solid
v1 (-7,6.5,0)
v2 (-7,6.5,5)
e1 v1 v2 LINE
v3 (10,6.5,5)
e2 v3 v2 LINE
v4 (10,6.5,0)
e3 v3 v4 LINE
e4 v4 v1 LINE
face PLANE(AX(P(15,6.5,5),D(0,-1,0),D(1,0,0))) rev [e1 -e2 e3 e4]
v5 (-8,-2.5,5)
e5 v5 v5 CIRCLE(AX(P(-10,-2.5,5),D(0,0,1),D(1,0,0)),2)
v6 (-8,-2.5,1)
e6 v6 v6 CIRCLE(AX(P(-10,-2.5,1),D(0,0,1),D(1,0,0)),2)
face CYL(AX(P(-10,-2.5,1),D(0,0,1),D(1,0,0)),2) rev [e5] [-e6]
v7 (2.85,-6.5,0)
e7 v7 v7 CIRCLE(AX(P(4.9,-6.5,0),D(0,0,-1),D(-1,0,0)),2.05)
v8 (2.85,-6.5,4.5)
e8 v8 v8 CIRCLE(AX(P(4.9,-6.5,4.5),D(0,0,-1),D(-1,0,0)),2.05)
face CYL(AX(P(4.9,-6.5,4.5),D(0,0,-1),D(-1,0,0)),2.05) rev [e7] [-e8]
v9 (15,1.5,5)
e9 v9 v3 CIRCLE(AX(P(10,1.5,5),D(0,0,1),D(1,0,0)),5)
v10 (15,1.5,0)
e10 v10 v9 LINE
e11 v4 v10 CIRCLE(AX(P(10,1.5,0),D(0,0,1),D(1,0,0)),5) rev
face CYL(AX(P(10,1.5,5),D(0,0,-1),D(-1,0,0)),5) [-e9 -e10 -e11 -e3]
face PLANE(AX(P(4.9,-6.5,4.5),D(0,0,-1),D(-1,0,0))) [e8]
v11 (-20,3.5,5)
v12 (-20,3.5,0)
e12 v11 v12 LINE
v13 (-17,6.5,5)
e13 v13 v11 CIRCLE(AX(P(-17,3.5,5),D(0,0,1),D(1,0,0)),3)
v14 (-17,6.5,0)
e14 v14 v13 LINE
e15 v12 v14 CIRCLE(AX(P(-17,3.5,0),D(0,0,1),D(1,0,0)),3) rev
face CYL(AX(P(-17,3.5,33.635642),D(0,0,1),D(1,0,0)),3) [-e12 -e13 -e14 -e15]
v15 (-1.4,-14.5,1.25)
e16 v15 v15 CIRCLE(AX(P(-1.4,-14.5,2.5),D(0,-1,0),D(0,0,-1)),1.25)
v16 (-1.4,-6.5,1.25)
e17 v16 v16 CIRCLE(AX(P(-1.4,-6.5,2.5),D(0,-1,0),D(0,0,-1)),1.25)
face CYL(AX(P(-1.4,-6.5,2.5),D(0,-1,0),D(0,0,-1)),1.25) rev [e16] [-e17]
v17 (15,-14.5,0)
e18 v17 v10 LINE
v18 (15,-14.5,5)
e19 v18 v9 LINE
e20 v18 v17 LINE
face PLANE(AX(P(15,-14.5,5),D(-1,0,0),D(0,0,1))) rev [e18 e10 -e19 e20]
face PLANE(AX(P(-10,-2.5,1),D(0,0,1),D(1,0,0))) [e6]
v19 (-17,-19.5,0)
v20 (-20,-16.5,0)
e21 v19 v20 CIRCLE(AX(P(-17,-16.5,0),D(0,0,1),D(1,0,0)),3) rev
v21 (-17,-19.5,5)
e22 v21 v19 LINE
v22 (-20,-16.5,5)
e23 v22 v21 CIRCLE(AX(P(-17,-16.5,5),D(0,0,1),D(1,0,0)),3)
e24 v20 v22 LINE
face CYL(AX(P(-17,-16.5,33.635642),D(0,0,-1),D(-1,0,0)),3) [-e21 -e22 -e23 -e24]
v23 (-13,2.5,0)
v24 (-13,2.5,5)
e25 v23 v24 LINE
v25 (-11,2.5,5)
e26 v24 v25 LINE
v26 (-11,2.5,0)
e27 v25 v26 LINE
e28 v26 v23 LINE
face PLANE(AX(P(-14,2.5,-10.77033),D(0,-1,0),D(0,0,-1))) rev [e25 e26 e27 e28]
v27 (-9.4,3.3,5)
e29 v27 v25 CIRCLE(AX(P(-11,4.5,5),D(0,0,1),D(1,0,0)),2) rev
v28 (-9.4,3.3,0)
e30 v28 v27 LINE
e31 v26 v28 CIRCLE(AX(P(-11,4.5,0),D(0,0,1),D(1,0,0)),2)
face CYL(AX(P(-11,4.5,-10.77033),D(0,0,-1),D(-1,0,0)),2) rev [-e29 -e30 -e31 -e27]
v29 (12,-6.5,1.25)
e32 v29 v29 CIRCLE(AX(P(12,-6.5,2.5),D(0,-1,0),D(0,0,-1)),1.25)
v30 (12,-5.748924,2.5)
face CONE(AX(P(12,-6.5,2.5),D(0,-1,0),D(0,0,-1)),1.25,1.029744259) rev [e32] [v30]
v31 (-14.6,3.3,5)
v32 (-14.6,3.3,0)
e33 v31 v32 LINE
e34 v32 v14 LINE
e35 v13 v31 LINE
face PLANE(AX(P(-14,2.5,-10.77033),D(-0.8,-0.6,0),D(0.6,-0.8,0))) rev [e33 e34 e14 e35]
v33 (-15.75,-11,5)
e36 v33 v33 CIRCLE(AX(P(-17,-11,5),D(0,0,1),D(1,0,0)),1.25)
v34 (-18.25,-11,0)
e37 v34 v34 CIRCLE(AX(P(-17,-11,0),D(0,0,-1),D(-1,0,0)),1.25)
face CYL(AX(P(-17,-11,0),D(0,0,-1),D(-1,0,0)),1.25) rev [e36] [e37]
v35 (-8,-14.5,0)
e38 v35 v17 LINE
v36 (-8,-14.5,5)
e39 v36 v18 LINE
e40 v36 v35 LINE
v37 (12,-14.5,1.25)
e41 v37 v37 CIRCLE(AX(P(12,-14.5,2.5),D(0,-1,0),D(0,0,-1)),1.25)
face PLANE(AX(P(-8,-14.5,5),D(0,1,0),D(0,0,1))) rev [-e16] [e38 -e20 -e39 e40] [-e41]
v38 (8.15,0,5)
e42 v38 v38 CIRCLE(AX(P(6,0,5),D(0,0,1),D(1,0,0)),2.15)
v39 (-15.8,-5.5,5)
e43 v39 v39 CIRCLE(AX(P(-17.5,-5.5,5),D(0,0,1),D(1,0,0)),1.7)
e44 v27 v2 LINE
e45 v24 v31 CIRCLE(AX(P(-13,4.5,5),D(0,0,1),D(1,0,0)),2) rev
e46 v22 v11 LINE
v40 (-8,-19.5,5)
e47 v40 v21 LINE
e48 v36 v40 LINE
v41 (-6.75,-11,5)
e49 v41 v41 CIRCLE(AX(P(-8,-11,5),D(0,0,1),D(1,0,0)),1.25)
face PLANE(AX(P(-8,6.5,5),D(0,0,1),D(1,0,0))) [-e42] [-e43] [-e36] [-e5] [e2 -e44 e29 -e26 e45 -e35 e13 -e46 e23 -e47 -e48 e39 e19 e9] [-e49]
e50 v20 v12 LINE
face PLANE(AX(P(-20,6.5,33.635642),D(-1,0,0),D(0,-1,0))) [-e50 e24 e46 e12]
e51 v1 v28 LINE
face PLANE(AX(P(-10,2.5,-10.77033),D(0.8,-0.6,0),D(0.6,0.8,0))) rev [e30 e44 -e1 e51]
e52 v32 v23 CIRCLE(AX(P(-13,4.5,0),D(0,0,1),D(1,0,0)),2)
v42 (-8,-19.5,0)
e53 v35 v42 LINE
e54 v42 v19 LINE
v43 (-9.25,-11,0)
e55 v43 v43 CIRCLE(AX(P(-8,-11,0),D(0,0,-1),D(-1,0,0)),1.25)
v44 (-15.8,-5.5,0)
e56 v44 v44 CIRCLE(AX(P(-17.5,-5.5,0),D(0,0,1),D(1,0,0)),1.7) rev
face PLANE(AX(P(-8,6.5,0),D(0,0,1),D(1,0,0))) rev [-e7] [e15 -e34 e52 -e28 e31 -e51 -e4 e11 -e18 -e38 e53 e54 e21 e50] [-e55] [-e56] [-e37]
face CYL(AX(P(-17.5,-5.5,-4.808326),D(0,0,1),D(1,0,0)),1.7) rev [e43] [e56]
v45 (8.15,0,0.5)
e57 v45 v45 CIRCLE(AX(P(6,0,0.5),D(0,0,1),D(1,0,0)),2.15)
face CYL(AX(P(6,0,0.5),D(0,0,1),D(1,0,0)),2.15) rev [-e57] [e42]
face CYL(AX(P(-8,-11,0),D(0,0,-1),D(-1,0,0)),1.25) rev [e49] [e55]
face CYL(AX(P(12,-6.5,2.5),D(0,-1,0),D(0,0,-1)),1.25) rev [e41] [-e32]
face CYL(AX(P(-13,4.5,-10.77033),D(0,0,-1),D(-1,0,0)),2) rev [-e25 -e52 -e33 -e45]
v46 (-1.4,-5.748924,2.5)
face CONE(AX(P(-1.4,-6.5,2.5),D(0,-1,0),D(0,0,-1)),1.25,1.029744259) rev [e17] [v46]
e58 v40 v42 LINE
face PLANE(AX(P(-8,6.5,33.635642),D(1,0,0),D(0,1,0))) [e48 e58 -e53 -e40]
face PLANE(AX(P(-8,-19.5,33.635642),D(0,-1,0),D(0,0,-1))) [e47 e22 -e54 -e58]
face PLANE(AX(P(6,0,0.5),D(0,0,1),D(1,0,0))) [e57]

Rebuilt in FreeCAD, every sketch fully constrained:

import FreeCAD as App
import Part
import Sketcher
from FreeCAD import Vector


def edges_at(feature, points):
    """Names of the edges that pass closest to the given points."""
    edges = feature.Shape.Edges
    near = lambda p: min(range(len(edges)), key=lambda i: edges[i].distToShape(Part.Vertex(*p))[0])
    return sorted({f"Edge{near(p) + 1}" for p in points})

doc = App.newDocument("Part")
params = doc.addObject("Spreadsheet::Sheet", "Params")
for row, (alias, value) in enumerate([
    ("sketch1_width", "23 mm"),
    ("sketch1_height", "21 mm"),
    ("pad1_length", "5 mm"),
    ("sketch2_diameter", "4.3 mm"),
    ("pocket1_length", "4.5 mm"),
    ("sketch3_diameter", "2.5 mm"),
    ("pocket2_length", "8 mm"),
    ("fillet_radius", "5 mm"),
    ("sketch4_diameter", "4.1 mm"),
    ("pocket3_length", "4.5 mm"),
    ("sketch5_width", "12 mm"),
    ("sketch5_height", "26 mm"),
    ("pad2_length", "5 mm"),
    ("sketch6_diameter", "3.4 mm"),
    ("pocket4_length", "5 mm"),
    ("sketch7_diameter", "4 mm"),
    ("pocket5_length", "4 mm"),
    ("sketch8_diameter", "2.5 mm"),
    ("hole_diameter", "2.5 mm"),
    ("hole_depth", "8 mm"),
    ("fillet2_radius", "3 mm"),
    ("sketch9_width", "4 mm"),
    ("sketch9_width2", "10 mm"),
    ("sketch9_length", "5 mm"),
    ("pocket6_length", "5 mm"),
    ("fillet3_radius", "2 mm"),
    ("sketch10_diameter", "1.5 mm"),
    ("pocket7_length", "5 mm"),
    ("sketch11_diameter", "2.5 mm"),
    ("hole2_diameter", "2.5 mm"),
    ("hole2_depth", "7.5 mm"),
], start=1):
    params.set(f"A{row}", alias)
    params.set(f"B{row}", "=" + value)
    params.setAlias(f"B{row}", alias)

body = doc.addObject("PartDesign::Body", "Body")

# Sketch on XY plane
sketch1 = body.newObject("Sketcher::SketchObject", "Sketch")
sketch1.AttachmentSupport = (doc.getObject("XY_Plane"), [""])
sketch1.MapMode = "FlatFace"
sketch1.addGeometry([
    Part.LineSegment(Vector(-8, 6, 0), Vector(-8, -14, 0)),
    Part.LineSegment(Vector(-8, -14, 0), Vector(15, -14, 0)),
    Part.LineSegment(Vector(15, -14, 0), Vector(15, 6, 0)),
    Part.LineSegment(Vector(15, 6, 0), Vector(-8, 6, 0)),
], False)
sketch1.addConstraint([
    Sketcher.Constraint("Coincident", 0, 2, 1, 1),
    Sketcher.Constraint("Coincident", 1, 2, 2, 1),
    Sketcher.Constraint("Coincident", 2, 2, 3, 1),
    Sketcher.Constraint("Coincident", 3, 2, 0, 1),
    Sketcher.Constraint("Vertical", 0),
    Sketcher.Constraint("Horizontal", 1),
    Sketcher.Constraint("Vertical", 2),
    Sketcher.Constraint("Horizontal", 3),
    Sketcher.Constraint("DistanceX", 1, 1, 1, 2, 23.0),
    Sketcher.Constraint("DistanceY", 0, 2, 0, 1, 21.0),
    Sketcher.Constraint("DistanceX", 0, 2, -1, 1, 8.0),
    Sketcher.Constraint("DistanceY", 0, 2, -1, 1, 14.5),
])
sketch1.setExpression("Constraints[8]", "Params.sketch1_width")
sketch1.setExpression("Constraints[9]", "Params.sketch1_height")
pad1 = body.newObject("PartDesign::Pad", "Pad")
pad1.Profile = sketch1
pad1.setExpression("Length", "Params.pad1_length")

# Sketch on XY plane
sketch2 = body.newObject("Sketcher::SketchObject", "Sketch001")
sketch2.AttachmentSupport = (doc.getObject("XY_Plane"), [""])
sketch2.MapMode = "FlatFace"
sketch2.AttachmentOffset = App.Placement(Vector(0, 0, 5), App.Rotation())
sketch2.addGeometry(Part.Circle(Vector(6, 0, 0), Vector(0, 0, 1), 2.1), False)
sketch2.addConstraint([
    Sketcher.Constraint("PointOnObject", 0, 3, -1),
    Sketcher.Constraint("Diameter", 0, 4.3),
    Sketcher.Constraint("DistanceX", -1, 1, 0, 3, 6.0),
])
sketch2.setExpression("Constraints[1]", "Params.sketch2_diameter")
pocket1 = body.newObject("PartDesign::Pocket", "Pocket")
pocket1.Profile = sketch2
pocket1.setExpression("Length", "Params.pocket1_length")

# Sketch on XZ plane
sketch3 = body.newObject("Sketcher::SketchObject", "Sketch002")
sketch3.AttachmentSupport = (doc.getObject("XZ_Plane"), [""])
sketch3.MapMode = "FlatFace"
sketch3.AttachmentOffset = App.Placement(Vector(0, 0, 14.5), App.Rotation())
sketch3.addGeometry([
    Part.Circle(Vector(-1.4, 2.5, 0), Vector(0, 0, 1), 1.2),
    Part.Circle(Vector(12, 2.5, 0), Vector(0, 0, 1), 1.2),
], False)
sketch3.addConstraint([
    Sketcher.Constraint("Equal", 0, 1),
    Sketcher.Constraint("Horizontal", 0, 3, 1, 3),
    Sketcher.Constraint("Diameter", 0, 2.5),
    Sketcher.Constraint("DistanceX", -1, 1, 1, 3, 12.0),
    Sketcher.Constraint("DistanceX", 0, 3, -1, 1, 1.4),
    Sketcher.Constraint("DistanceY", -1, 1, 0, 3, 2.5),
])
sketch3.setExpression("Constraints[2]", "Params.sketch3_diameter")
pocket2 = body.newObject("PartDesign::Pocket", "Pocket001")
pocket2.Profile = sketch3
pocket2.setExpression("Length", "Params.pocket2_length")
doc.recompute()

fillet = body.newObject("PartDesign::Fillet", "Fillet")
fillet.Base = (pocket2, edges_at(pocket2, [(15, 6.5, 2.5)]))
fillet.setExpression("Radius", "Params.fillet_radius")

# Sketch on XY plane
sketch4 = body.newObject("Sketcher::SketchObject", "Sketch003")
sketch4.AttachmentSupport = (doc.getObject("XY_Plane"), [""])
sketch4.MapMode = "FlatFace"
sketch4.addGeometry(Part.Circle(Vector(4.9, -6.5, 0), Vector(0, 0, 1), 2), False)
sketch4.addConstraint([
    Sketcher.Constraint("Diameter", 0, 4.1),
    Sketcher.Constraint("DistanceX", -1, 1, 0, 3, 4.9),
    Sketcher.Constraint("DistanceY", 0, 3, -1, 1, 6.5),
])
sketch4.setExpression("Constraints[0]", "Params.sketch4_diameter")
pocket3 = body.newObject("PartDesign::Pocket", "Pocket002")
pocket3.Profile = sketch4
pocket3.setExpression("Length", "Params.pocket3_length")
pocket3.Reversed = True

# Sketch on XY plane
sketch5 = body.newObject("Sketcher::SketchObject", "Sketch004")
sketch5.AttachmentSupport = (doc.getObject("XY_Plane"), [""])
sketch5.MapMode = "FlatFace"
sketch5.addGeometry([
    Part.LineSegment(Vector(-8, 6, 0), Vector(-8, -20, 0)),
    Part.LineSegment(Vector(-8, -20, 0), Vector(-20, -20, 0)),
    Part.LineSegment(Vector(-20, -20, 0), Vector(-20, 6, 0)),
    Part.LineSegment(Vector(-20, 6, 0), Vector(-8, 6, 0)),
], False)
sketch5.addConstraint([
    Sketcher.Constraint("Coincident", 0, 2, 1, 1),
    Sketcher.Constraint("Coincident", 1, 2, 2, 1),
    Sketcher.Constraint("Coincident", 2, 2, 3, 1),
    Sketcher.Constraint("Coincident", 3, 2, 0, 1),
    Sketcher.Constraint("Vertical", 0),
    Sketcher.Constraint("Horizontal", 1),
    Sketcher.Constraint("Vertical", 2),
    Sketcher.Constraint("Horizontal", 3),
    Sketcher.Constraint("DistanceX", 1, 2, 1, 1, 12.0),
    Sketcher.Constraint("DistanceY", 0, 2, 0, 1, 26.0),
    Sketcher.Constraint("DistanceX", 0, 2, -1, 1, 8.0),
    Sketcher.Constraint("DistanceY", 0, 2, -1, 1, 19.5),
])
sketch5.setExpression("Constraints[8]", "Params.sketch5_width")
sketch5.setExpression("Constraints[9]", "Params.sketch5_height")
pad2 = body.newObject("PartDesign::Pad", "Pad001")
pad2.Profile = sketch5
pad2.setExpression("Length", "Params.pad2_length")

# Sketch on XY plane
sketch6 = body.newObject("Sketcher::SketchObject", "Sketch005")
sketch6.AttachmentSupport = (doc.getObject("XY_Plane"), [""])
sketch6.MapMode = "FlatFace"
sketch6.AttachmentOffset = App.Placement(Vector(0, 0, 5), App.Rotation())
sketch6.addGeometry(Part.Circle(Vector(-17.5, -5.5, 0), Vector(0, 0, 1), 1.7), False)
sketch6.addConstraint([
    Sketcher.Constraint("Diameter", 0, 3.4),
    Sketcher.Constraint("DistanceX", 0, 3, -1, 1, 17.5),
    Sketcher.Constraint("DistanceY", 0, 3, -1, 1, 5.5),
])
sketch6.setExpression("Constraints[0]", "Params.sketch6_diameter")
pocket4 = body.newObject("PartDesign::Pocket", "Pocket003")
pocket4.Profile = sketch6
pocket4.setExpression("Length", "Params.pocket4_length")

# Sketch on XY plane
sketch7 = body.newObject("Sketcher::SketchObject", "Sketch006")
sketch7.AttachmentSupport = (doc.getObject("XY_Plane"), [""])
sketch7.MapMode = "FlatFace"
sketch7.AttachmentOffset = App.Placement(Vector(0, 0, 5), App.Rotation())
sketch7.addGeometry(Part.Circle(Vector(-10, -2.5, 0), Vector(0, 0, 1), 2), False)
sketch7.addConstraint([
    Sketcher.Constraint("Diameter", 0, 4.0),
    Sketcher.Constraint("DistanceX", 0, 3, -1, 1, 10.0),
    Sketcher.Constraint("DistanceY", 0, 3, -1, 1, 2.5),
])
sketch7.setExpression("Constraints[0]", "Params.sketch7_diameter")
pocket5 = body.newObject("PartDesign::Pocket", "Pocket004")
pocket5.Profile = sketch7
pocket5.setExpression("Length", "Params.pocket5_length")

# Sketch on XZ plane
sketch8 = body.newObject("Sketcher::SketchObject", "Sketch007")
sketch8.AttachmentSupport = (doc.getObject("XZ_Plane"), [""])
sketch8.MapMode = "FlatFace"
sketch8.AttachmentOffset = App.Placement(Vector(0, 0, 14.5), App.Rotation())
sketch8.addGeometry([
    Part.Circle(Vector(-1.4, 2.5, 0), Vector(0, 0, 1), 1.2),
    Part.Circle(Vector(12, 2.5, 0), Vector(0, 0, 1), 1.2),
], False)
sketch8.addConstraint([
    Sketcher.Constraint("Equal", 0, 1),
    Sketcher.Constraint("Horizontal", 0, 3, 1, 3),
    Sketcher.Constraint("Diameter", 0, 2.5),
    Sketcher.Constraint("DistanceX", -1, 1, 1, 3, 12.0),
    Sketcher.Constraint("DistanceX", 0, 3, -1, 1, 1.4),
    Sketcher.Constraint("DistanceY", -1, 1, 0, 3, 2.5),
])
sketch8.setExpression("Constraints[2]", "Params.sketch8_diameter")
doc.recompute()
hole = body.newObject("PartDesign::Hole", "Hole")
hole.Profile = sketch8
hole.ThreadType = "None"
hole.setExpression("Diameter", "Params.hole_diameter")
hole.DepthType = "Dimension"
hole.setExpression("Depth", "Params.hole_depth")
hole.DrillPoint = "Angled"
hole.DrillPointAngle = 118
doc.recompute()

fillet2 = body.newObject("PartDesign::Fillet", "Fillet001")
fillet2.Base = (hole, edges_at(hole, [(-20, -19.5, 2.5), (-20, 6.5, 2.5)]))
fillet2.setExpression("Radius", "Params.fillet2_radius")

# Sketch on XY plane
sketch9 = body.newObject("Sketcher::SketchObject", "Sketch008")
sketch9.AttachmentSupport = (doc.getObject("XY_Plane"), [""])
sketch9.MapMode = "FlatFace"
sketch9.AttachmentOffset = App.Placement(Vector(0, 0, 5), App.Rotation())
sketch9.addGeometry([
    Part.LineSegment(Vector(-17, 6.5, 0), Vector(-14, 2.5, 0)),
    Part.LineSegment(Vector(-14, 2.5, 0), Vector(-10, 2.5, 0)),
    Part.LineSegment(Vector(-10, 2.5, 0), Vector(-7, 6.5, 0)),
    Part.LineSegment(Vector(-7, 6.5, 0), Vector(-17, 6.5, 0)),
], False)
sketch9.addConstraint([
    Sketcher.Constraint("Coincident", 0, 2, 1, 1),
    Sketcher.Constraint("Coincident", 1, 2, 2, 1),
    Sketcher.Constraint("Coincident", 2, 2, 3, 1),
    Sketcher.Constraint("Coincident", 3, 2, 0, 1),
    Sketcher.Constraint("Horizontal", 1),
    Sketcher.Constraint("Horizontal", 3),
    Sketcher.Constraint("Equal", 0, 2),
    Sketcher.Constraint("DistanceX", 1, 1, 1, 2, 4.0),
    Sketcher.Constraint("DistanceX", 3, 2, 3, 1, 10.0),
    Sketcher.Constraint("Distance", 0, 5.0),
    Sketcher.Constraint("DistanceX", 0, 2, -1, 1, 14.0),
    Sketcher.Constraint("DistanceY", -1, 1, 0, 2, 2.5),
])
sketch9.setExpression("Constraints[7]", "Params.sketch9_width")
sketch9.setExpression("Constraints[8]", "Params.sketch9_width2")
sketch9.setExpression("Constraints[9]", "Params.sketch9_length")
pocket6 = body.newObject("PartDesign::Pocket", "Pocket005")
pocket6.Profile = sketch9
pocket6.setExpression("Length", "Params.pocket6_length")
doc.recompute()

fillet3 = body.newObject("PartDesign::Fillet", "Fillet002")
fillet3.Base = (pocket6, edges_at(pocket6, [(-10, 2.5, 2.5), (-14, 2.5, 2.5)]))
fillet3.setExpression("Radius", "Params.fillet3_radius")

# Sketch on XY plane
sketch10 = body.newObject("Sketcher::SketchObject", "Sketch009")
sketch10.AttachmentSupport = (doc.getObject("XY_Plane"), [""])
sketch10.MapMode = "FlatFace"
sketch10.addGeometry([
    Part.Circle(Vector(-17, -11, 0), Vector(0, 0, 1), 0.8),
    Part.Circle(Vector(-8, -11, 0), Vector(0, 0, 1), 0.8),
], False)
sketch10.addConstraint([
    Sketcher.Constraint("Equal", 0, 1),
    Sketcher.Constraint("Horizontal", 0, 3, 1, 3),
    Sketcher.Constraint("Diameter", 0, 1.5),
    Sketcher.Constraint("DistanceX", 0, 3, -1, 1, 17.0),
    Sketcher.Constraint("DistanceY", 0, 3, -1, 1, 11.0),
    Sketcher.Constraint("DistanceX", 1, 3, -1, 1, 8.0),
])
sketch10.setExpression("Constraints[2]", "Params.sketch10_diameter")
pocket7 = body.newObject("PartDesign::Pocket", "Pocket006")
pocket7.Profile = sketch10
pocket7.setExpression("Length", "Params.pocket7_length")
pocket7.Reversed = True

# Sketch on XY plane
sketch11 = body.newObject("Sketcher::SketchObject", "Sketch010")
sketch11.AttachmentSupport = (doc.getObject("XY_Plane"), [""])
sketch11.MapMode = "FlatFace"
sketch11.addGeometry([
    Part.Circle(Vector(-8, -11, 0), Vector(0, 0, 1), 1.2),
    Part.Circle(Vector(-17, -11, 0), Vector(0, 0, 1), 1.2),
], False)
sketch11.addConstraint([
    Sketcher.Constraint("Equal", 0, 1),
    Sketcher.Constraint("Horizontal", 0, 3, 1, 3),
    Sketcher.Constraint("Diameter", 0, 2.5),
    Sketcher.Constraint("DistanceX", 0, 3, -1, 1, 8.0),
    Sketcher.Constraint("DistanceY", 0, 3, -1, 1, 11.0),
    Sketcher.Constraint("DistanceX", 1, 3, -1, 1, 17.0),
])
sketch11.setExpression("Constraints[2]", "Params.sketch11_diameter")
doc.recompute()
hole2 = body.newObject("PartDesign::Hole", "Hole001")
hole2.Profile = sketch11
hole2.ThreadType = "None"
hole2.setExpression("Diameter", "Params.hole2_diameter")
hole2.DepthType = "Dimension"
hole2.setExpression("Depth", "Params.hole2_depth")
hole2.DrillPoint = "Angled"
hole2.DrillPointAngle = 118
hole2.Reversed = True

doc.recompute()
